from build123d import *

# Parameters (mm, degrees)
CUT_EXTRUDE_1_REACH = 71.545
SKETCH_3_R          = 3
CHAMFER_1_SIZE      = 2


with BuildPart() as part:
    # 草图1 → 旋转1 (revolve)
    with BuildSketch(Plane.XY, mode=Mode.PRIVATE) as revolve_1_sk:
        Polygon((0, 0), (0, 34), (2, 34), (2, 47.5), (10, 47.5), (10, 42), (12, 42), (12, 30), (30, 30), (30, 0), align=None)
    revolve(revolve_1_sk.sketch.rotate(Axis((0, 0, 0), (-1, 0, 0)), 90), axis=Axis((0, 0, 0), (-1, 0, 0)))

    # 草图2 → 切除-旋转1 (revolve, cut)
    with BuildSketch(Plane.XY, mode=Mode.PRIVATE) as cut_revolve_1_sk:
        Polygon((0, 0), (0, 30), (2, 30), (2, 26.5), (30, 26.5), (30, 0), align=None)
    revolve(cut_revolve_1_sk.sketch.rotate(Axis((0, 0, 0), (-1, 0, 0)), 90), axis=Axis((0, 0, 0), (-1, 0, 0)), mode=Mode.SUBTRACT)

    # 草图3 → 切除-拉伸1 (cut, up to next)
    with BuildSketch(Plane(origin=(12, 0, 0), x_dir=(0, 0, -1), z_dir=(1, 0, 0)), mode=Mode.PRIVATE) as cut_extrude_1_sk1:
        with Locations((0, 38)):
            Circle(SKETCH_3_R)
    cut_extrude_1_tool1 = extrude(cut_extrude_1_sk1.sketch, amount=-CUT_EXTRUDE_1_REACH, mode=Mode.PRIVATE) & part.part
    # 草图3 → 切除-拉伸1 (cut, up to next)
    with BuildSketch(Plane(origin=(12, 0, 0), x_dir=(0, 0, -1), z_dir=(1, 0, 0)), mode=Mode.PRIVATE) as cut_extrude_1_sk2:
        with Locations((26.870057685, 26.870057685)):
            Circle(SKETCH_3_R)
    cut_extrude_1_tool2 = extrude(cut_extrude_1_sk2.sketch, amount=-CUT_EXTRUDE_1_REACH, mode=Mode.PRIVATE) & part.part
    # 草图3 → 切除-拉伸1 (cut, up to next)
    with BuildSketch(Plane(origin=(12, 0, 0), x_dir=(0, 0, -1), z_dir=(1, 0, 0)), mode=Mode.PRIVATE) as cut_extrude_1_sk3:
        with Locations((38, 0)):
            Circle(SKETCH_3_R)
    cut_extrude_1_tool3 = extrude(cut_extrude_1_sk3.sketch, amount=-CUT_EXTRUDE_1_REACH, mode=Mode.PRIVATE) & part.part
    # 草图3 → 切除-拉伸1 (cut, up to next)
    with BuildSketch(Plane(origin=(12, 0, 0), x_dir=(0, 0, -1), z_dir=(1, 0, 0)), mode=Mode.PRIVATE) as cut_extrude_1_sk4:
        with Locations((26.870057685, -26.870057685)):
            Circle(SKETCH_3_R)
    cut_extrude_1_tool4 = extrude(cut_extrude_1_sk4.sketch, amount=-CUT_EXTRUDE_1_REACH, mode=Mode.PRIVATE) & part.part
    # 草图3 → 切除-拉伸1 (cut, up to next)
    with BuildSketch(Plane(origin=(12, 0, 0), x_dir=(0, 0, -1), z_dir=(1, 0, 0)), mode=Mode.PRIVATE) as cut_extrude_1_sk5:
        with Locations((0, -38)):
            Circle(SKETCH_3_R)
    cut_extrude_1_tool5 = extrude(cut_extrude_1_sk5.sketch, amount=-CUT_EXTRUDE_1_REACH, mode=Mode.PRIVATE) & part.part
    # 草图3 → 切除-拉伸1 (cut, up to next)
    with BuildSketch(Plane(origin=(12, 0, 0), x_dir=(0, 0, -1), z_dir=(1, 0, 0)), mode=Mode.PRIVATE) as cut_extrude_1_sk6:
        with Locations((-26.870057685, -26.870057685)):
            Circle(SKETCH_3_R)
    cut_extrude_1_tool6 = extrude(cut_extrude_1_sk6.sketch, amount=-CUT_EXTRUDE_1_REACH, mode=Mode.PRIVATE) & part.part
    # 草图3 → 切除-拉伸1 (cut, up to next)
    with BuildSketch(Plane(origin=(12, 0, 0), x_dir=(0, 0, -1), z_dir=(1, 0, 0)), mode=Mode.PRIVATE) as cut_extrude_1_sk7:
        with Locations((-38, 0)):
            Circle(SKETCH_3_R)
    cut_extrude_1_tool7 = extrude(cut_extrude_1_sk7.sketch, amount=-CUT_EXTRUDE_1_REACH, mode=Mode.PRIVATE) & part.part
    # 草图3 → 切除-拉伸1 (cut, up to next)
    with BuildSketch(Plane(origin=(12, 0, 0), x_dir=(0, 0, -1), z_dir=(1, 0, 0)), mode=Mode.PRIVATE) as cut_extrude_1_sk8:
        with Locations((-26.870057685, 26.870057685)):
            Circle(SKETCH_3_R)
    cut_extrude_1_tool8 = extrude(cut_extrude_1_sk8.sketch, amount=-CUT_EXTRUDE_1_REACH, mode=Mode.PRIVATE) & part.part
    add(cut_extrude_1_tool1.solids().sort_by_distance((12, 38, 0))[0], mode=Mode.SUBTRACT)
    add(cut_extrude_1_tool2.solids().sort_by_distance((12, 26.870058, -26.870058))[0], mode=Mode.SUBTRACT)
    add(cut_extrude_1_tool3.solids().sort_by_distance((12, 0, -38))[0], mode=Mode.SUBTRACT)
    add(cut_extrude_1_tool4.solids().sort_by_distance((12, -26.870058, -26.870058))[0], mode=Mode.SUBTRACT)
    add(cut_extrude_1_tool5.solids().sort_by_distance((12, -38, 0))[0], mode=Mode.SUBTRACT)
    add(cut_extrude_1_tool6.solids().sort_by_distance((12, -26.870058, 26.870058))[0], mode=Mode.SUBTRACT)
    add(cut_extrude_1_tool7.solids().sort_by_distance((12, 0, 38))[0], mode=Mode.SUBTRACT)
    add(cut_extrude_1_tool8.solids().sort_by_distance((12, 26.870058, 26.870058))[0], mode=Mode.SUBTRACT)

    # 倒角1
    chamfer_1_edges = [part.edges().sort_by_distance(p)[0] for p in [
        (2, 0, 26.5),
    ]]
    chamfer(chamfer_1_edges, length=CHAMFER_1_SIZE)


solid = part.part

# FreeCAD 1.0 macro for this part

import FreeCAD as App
import Part
import Sketcher

V = App.Vector
Q = App.Units.Quantity


def edges_at(feature, points):
    """Names of the edges that pass closest to the given points."""
    edges = feature.Shape.Edges
    near = lambda p: min(range(len(edges)), key=lambda i: edges[i].distToShape(Part.Vertex(*p))[0])
    return sorted({f"Edge{near(p) + 1}" for p in points})


def add_polygon(sketch, points):
    """Adds a closed chain of lines whose ends are joined by coincident constraints."""
    first, n = sketch.GeometryCount, len(points)
    for a, b in zip(points, points[1:] + points[:1]):
        sketch.addGeometry(Part.LineSegment(App.Vector(*a, 0), App.Vector(*b, 0)), False)
    for i in range(n):
        sketch.addConstraint(Sketcher.Constraint("Coincident", first + i, 2, first + (i + 1) % n, 1))

doc = App.newDocument("Part")
body = doc.addObject("PartDesign::Body", "Body")

# Sketch on XY plane
sketch1 = body.newObject("Sketcher::SketchObject", "Sketch")
sketch1.AttachmentSupport = (doc.getObject("XY_Plane"), [""])
sketch1.MapMode = "FlatFace"
add_polygon(sketch1, [(0, 34), (0, 0), (30, 0), (30, 30), (12, 30), (12, 42), (10, 42), (10, 47.5), (2, 47.5), (2, 34)])  # lines 0-9
sketch1.addConstraint(Sketcher.Constraint("Vertical", 0))
sketch1.addConstraint(Sketcher.Constraint("Horizontal", 1))
sketch1.addConstraint(Sketcher.Constraint("Vertical", 2))
sketch1.addConstraint(Sketcher.Constraint("Horizontal", 3))
sketch1.addConstraint(Sketcher.Constraint("Vertical", 4))
sketch1.addConstraint(Sketcher.Constraint("Horizontal", 5))
sketch1.addConstraint(Sketcher.Constraint("Vertical", 6))
sketch1.addConstraint(Sketcher.Constraint("Horizontal", 7))
sketch1.addConstraint(Sketcher.Constraint("Vertical", 8))
sketch1.addConstraint(Sketcher.Constraint("Horizontal", 9))
sketch1.addConstraint(Sketcher.Constraint("Coincident", 0, 2, -1, 1))
sketch1.addConstraint(Sketcher.Constraint("Equal", 5, 9))
sketch1.addConstraint(Sketcher.Constraint("Equal", 1, 2))
sketch1.addConstraint(Sketcher.Constraint("DistanceX", 1, 1, 1, 2, Q("30 mm")))
sketch1.addConstraint(Sketcher.Constraint("DistanceX", 3, 2, 3, 1, Q("18 mm")))
sketch1.addConstraint(Sketcher.Constraint("DistanceX", 5, 2, 5, 1, Q("2 mm")))
sketch1.addConstraint(Sketcher.Constraint("DistanceY", 0, 2, 0, 1, Q("34 mm")))
sketch1.addConstraint(Sketcher.Constraint("DistanceY", 4, 1, 4, 2, Q("12 mm")))
sketch1.addConstraint(Sketcher.Constraint("DistanceY", 6, 1, 6, 2, Q("5.5 mm")))
revolution = body.newObject("PartDesign::Revolution", "Revolution")
revolution.Profile = sketch1
revolution.ReferenceAxis = (sketch1, ["H_Axis"])
revolution.Angle = 360

# Sketch on XY plane
sketch2 = body.newObject("Sketcher::SketchObject", "Sketch001")
sketch2.AttachmentSupport = (doc.getObject("XY_Plane"), [""])
sketch2.MapMode = "FlatFace"
add_polygon(sketch2, [(0, 30), (0, 0), (30, 0), (30, 26.5), (2, 26.5), (2, 30)])  # lines 0-5
sketch2.addConstraint(Sketcher.Constraint("Vertical", 0))
sketch2.addConstraint(Sketcher.Constraint("Horizontal", 1))
sketch2.addConstraint(Sketcher.Constraint("Vertical", 2))
sketch2.addConstraint(Sketcher.Constraint("Horizontal", 3))
sketch2.addConstraint(Sketcher.Constraint("Vertical", 4))
sketch2.addConstraint(Sketcher.Constraint("Horizontal", 5))
sketch2.addConstraint(Sketcher.Constraint("Coincident", 0, 2, -1, 1))
sketch2.addConstraint(Sketcher.Constraint("Equal", 1, 0))
sketch2.addConstraint(Sketcher.Constraint("DistanceX", 1, 1, 1, 2, Q("30 mm")))
sketch2.addConstraint(Sketcher.Constraint("DistanceX", 3, 2, 3, 1, Q("28 mm")))
sketch2.addConstraint(Sketcher.Constraint("DistanceY", 2, 1, 2, 2, Q("26.5 mm")))
groove = body.newObject("PartDesign::Groove", "Groove")
groove.Profile = sketch2
groove.ReferenceAxis = (sketch2, ["H_Axis"])
groove.Angle = 360

# Sketch on YZ plane
sketch3 = body.newObject("Sketcher::SketchObject", "Sketch002")
sketch3.AttachmentSupport = (doc.getObject("YZ_Plane"), [""])
sketch3.MapMode = "FlatFace"
sketch3.AttachmentOffset = App.Placement(V(0, 0, 12), App.Rotation())
sketch3.addGeometry(Part.Circle(V(38, 0, 0), V(0, 0, 1), 3), False)
sketch3.addConstraint(Sketcher.Constraint("PointOnObject", 0, 3, -1))
sketch3.addConstraint(Sketcher.Constraint("Diameter", 0, Q("6 mm")))
sketch3.addConstraint(Sketcher.Constraint("DistanceX", -1, 1, 0, 3, Q("38 mm")))
pocket1 = body.newObject("PartDesign::Pocket", "Pocket")
pocket1.Profile = sketch3
pocket1.Type = "UpToFirst"

# Sketch on YZ plane
sketch4 = body.newObject("Sketcher::SketchObject", "Sketch003")
sketch4.AttachmentSupport = (doc.getObject("YZ_Plane"), [""])
sketch4.MapMode = "FlatFace"
sketch4.AttachmentOffset = App.Placement(V(0, 0, 12), App.Rotation())
sketch4.addGeometry(Part.Circle(V(26.9, -26.9, 0), V(0, 0, 1), 3), False)
sketch4.addConstraint(Sketcher.Constraint("Diameter", 0, Q("6 mm")))
sketch4.addConstraint(Sketcher.Constraint("DistanceX", -1, 1, 0, 3, Q("26.870058 mm")))
sketch4.addConstraint(Sketcher.Constraint("DistanceY", 0, 3, -1, 1, Q("26.870058 mm")))
pocket2 = body.newObject("PartDesign::Pocket", "Pocket001")
pocket2.Profile = sketch4
pocket2.Type = "UpToFirst"

# Sketch on YZ plane
sketch5 = body.newObject("Sketcher::SketchObject", "Sketch004")
sketch5.AttachmentSupport = (doc.getObject("YZ_Plane"), [""])
sketch5.MapMode = "FlatFace"
sketch5.AttachmentOffset = App.Placement(V(0, 0, 12), App.Rotation())
sketch5.addGeometry(Part.Circle(V(0, -38, 0), V(0, 0, 1), 3), False)
sketch5.addConstraint(Sketcher.Constraint("PointOnObject", 0, 3, -2))
sketch5.addConstraint(Sketcher.Constraint("Diameter", 0, Q("6 mm")))
sketch5.addConstraint(Sketcher.Constraint("DistanceY", 0, 3, -1, 1, Q("38 mm")))
pocket3 = body.newObject("PartDesign::Pocket", "Pocket002")
pocket3.Profile = sketch5
pocket3.Type = "UpToFirst"

# Sketch on YZ plane
sketch6 = body.newObject("Sketcher::SketchObject", "Sketch005")
sketch6.AttachmentSupport = (doc.getObject("YZ_Plane"), [""])
sketch6.MapMode = "FlatFace"
sketch6.AttachmentOffset = App.Placement(V(0, 0, 12), App.Rotation())
sketch6.addGeometry(Part.Circle(V(-26.9, -26.9, 0), V(0, 0, 1), 3), False)
sketch6.addConstraint(Sketcher.Constraint("Diameter", 0, Q("6 mm")))
sketch6.addConstraint(Sketcher.Constraint("DistanceX", 0, 3, -1, 1, Q("26.870058 mm")))
sketch6.addConstraint(Sketcher.Constraint("DistanceY", 0, 3, -1, 1, Q("26.870058 mm")))
pocket4 = body.newObject("PartDesign::Pocket", "Pocket003")
pocket4.Profile = sketch6
pocket4.Type = "UpToFirst"

# Sketch on YZ plane
sketch7 = body.newObject("Sketcher::SketchObject", "Sketch006")
sketch7.AttachmentSupport = (doc.getObject("YZ_Plane"), [""])
sketch7.MapMode = "FlatFace"
sketch7.AttachmentOffset = App.Placement(V(0, 0, 12), App.Rotation())
sketch7.addGeometry(Part.Circle(V(-38, 0, 0), V(0, 0, 1), 3), False)
sketch7.addConstraint(Sketcher.Constraint("PointOnObject", 0, 3, -1))
sketch7.addConstraint(Sketcher.Constraint("Diameter", 0, Q("6 mm")))
sketch7.addConstraint(Sketcher.Constraint("DistanceX", 0, 3, -1, 1, Q("38 mm")))
pocket5 = body.newObject("PartDesign::Pocket", "Pocket004")
pocket5.Profile = sketch7
pocket5.Type = "UpToFirst"

# Sketch on YZ plane
sketch8 = body.newObject("Sketcher::SketchObject", "Sketch007")
sketch8.AttachmentSupport = (doc.getObject("YZ_Plane"), [""])
sketch8.MapMode = "FlatFace"
sketch8.AttachmentOffset = App.Placement(V(0, 0, 12), App.Rotation())
sketch8.addGeometry(Part.Circle(V(-26.9, 26.9, 0), V(0, 0, 1), 3), False)
sketch8.addConstraint(Sketcher.Constraint("Diameter", 0, Q("6 mm")))
sketch8.addConstraint(Sketcher.Constraint("DistanceX", 0, 3, -1, 1, Q("26.870058 mm")))
sketch8.addConstraint(Sketcher.Constraint("DistanceY", -1, 1, 0, 3, Q("26.870058 mm")))
pocket6 = body.newObject("PartDesign::Pocket", "Pocket005")
pocket6.Profile = sketch8
pocket6.Type = "UpToFirst"

# Sketch on YZ plane
sketch9 = body.newObject("Sketcher::SketchObject", "Sketch008")
sketch9.AttachmentSupport = (doc.getObject("YZ_Plane"), [""])
sketch9.MapMode = "FlatFace"
sketch9.AttachmentOffset = App.Placement(V(0, 0, 12), App.Rotation())
sketch9.addGeometry(Part.Circle(V(0, 38, 0), V(0, 0, 1), 3), False)
sketch9.addConstraint(Sketcher.Constraint("PointOnObject", 0, 3, -2))
sketch9.addConstraint(Sketcher.Constraint("Diameter", 0, Q("6 mm")))
sketch9.addConstraint(Sketcher.Constraint("DistanceY", -1, 1, 0, 3, Q("38 mm")))
pocket7 = body.newObject("PartDesign::Pocket", "Pocket006")
pocket7.Profile = sketch9
pocket7.Type = "UpToFirst"

# Sketch on YZ plane
sketch10 = body.newObject("Sketcher::SketchObject", "Sketch009")
sketch10.AttachmentSupport = (doc.getObject("YZ_Plane"), [""])
sketch10.MapMode = "FlatFace"
sketch10.AttachmentOffset = App.Placement(V(0, 0, 12), App.Rotation())
sketch10.addGeometry(Part.Circle(V(26.9, 26.9, 0), V(0, 0, 1), 3), False)
sketch10.addConstraint(Sketcher.Constraint("Diameter", 0, Q("6 mm")))
sketch10.addConstraint(Sketcher.Constraint("DistanceX", -1, 1, 0, 3, Q("26.870058 mm")))
sketch10.addConstraint(Sketcher.Constraint("DistanceY", -1, 1, 0, 3, Q("26.870058 mm")))
pocket8 = body.newObject("PartDesign::Pocket", "Pocket007")
pocket8.Profile = sketch10
pocket8.Type = "UpToFirst"
doc.recompute()

chamfer = body.newObject("PartDesign::Chamfer", "Chamfer")
chamfer.Base = (pocket8, edges_at(pocket8, [(2, 0, 26.5)]))
chamfer.Size = 2

doc.recompute()
